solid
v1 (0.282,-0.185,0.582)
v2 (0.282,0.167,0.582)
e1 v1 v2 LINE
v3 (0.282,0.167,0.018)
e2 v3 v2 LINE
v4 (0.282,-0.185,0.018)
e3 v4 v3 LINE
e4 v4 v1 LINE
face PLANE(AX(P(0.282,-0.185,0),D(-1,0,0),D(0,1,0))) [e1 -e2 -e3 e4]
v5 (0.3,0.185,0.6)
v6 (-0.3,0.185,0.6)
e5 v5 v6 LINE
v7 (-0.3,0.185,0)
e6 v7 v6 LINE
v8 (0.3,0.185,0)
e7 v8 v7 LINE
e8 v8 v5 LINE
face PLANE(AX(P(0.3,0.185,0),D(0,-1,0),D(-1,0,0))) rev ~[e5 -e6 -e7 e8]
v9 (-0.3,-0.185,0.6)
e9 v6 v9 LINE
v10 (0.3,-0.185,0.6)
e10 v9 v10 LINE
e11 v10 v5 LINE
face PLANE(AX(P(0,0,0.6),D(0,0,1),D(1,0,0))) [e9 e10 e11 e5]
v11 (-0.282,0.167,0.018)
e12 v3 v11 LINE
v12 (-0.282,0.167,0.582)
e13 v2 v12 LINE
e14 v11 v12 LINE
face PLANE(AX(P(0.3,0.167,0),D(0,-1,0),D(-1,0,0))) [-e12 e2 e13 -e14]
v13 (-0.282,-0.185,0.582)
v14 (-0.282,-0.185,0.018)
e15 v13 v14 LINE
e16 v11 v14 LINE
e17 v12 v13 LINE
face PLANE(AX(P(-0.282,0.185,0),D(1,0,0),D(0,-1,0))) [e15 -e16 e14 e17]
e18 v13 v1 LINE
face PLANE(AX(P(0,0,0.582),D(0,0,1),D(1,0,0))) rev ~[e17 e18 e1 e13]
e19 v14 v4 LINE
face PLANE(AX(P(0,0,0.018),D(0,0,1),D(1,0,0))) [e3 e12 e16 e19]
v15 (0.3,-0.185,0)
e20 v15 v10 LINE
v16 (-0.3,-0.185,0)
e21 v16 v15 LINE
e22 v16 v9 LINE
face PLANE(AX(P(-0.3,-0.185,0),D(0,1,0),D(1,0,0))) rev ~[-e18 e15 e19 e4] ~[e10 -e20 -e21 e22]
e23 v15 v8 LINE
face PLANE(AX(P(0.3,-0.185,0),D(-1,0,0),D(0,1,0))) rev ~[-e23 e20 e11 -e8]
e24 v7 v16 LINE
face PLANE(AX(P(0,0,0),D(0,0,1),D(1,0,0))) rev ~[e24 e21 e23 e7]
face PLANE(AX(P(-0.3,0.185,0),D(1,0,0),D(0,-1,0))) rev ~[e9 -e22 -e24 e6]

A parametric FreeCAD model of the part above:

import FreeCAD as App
import Part
import Sketcher

V = App.Vector
Q = App.Units.Quantity


def faces_at(feature, points):
    """Names of the faces that lie closest to the given points."""
    faces = feature.Shape.Faces
    near = lambda p: min(range(len(faces)), key=lambda i: faces[i].distToShape(Part.Vertex(*p))[0])
    return sorted({f"Face{near(p) + 1}" for p in points})

doc = App.newDocument("Part")
body = doc.addObject("PartDesign::Body", "Body")

# Sketch on XY plane
sketch1 = body.newObject("Sketcher::SketchObject", "Sketch")
sketch1.AttachmentSupport = (doc.getObject("XY_Plane"), [""])
sketch1.MapMode = "FlatFace"
sketch1.addGeometry([
    Part.LineSegment(V(-0.3, 0.18, 0), V(-0.3, -0.18, 0)),
    Part.LineSegment(V(-0.3, -0.18, 0), V(0.3, -0.18, 0)),
    Part.LineSegment(V(0.3, -0.18, 0), V(0.3, 0.18, 0)),
    Part.LineSegment(V(0.3, 0.18, 0), V(-0.3, 0.18, 0)),
], False)
sketch1.addConstraint([
    Sketcher.Constraint("Coincident", 0, 2, 1, 1),
    Sketcher.Constraint("Coincident", 1, 2, 2, 1),
    Sketcher.Constraint("Coincident", 2, 2, 3, 1),
    Sketcher.Constraint("Coincident", 3, 2, 0, 1),
    Sketcher.Constraint("Vertical", 0),
    Sketcher.Constraint("Horizontal", 1),
    Sketcher.Constraint("Vertical", 2),
    Sketcher.Constraint("Horizontal", 3),
    Sketcher.Constraint("Symmetric", 0, 2, 2, 2, -1, 1),
    Sketcher.Constraint("DistanceX", 0, 2, -1, 1, Q("0.3 mm")),
    Sketcher.Constraint("DistanceY", 0, 2, 0, 1, Q("0.37 mm")),
])
pad1 = body.newObject("PartDesign::Pad", "Pad")
pad1.Profile = sketch1
pad1.Length = 0.6
doc.recompute()

thickness = body.newObject("PartDesign::Thickness", "Thickness")
thickness.Base = (pad1, faces_at(pad1, [(-0.206, -0.185, 0.494)]))
thickness.Value = 0.018
thickness.Reversed = True
thickness.Join = "Intersection"

doc.recompute()
